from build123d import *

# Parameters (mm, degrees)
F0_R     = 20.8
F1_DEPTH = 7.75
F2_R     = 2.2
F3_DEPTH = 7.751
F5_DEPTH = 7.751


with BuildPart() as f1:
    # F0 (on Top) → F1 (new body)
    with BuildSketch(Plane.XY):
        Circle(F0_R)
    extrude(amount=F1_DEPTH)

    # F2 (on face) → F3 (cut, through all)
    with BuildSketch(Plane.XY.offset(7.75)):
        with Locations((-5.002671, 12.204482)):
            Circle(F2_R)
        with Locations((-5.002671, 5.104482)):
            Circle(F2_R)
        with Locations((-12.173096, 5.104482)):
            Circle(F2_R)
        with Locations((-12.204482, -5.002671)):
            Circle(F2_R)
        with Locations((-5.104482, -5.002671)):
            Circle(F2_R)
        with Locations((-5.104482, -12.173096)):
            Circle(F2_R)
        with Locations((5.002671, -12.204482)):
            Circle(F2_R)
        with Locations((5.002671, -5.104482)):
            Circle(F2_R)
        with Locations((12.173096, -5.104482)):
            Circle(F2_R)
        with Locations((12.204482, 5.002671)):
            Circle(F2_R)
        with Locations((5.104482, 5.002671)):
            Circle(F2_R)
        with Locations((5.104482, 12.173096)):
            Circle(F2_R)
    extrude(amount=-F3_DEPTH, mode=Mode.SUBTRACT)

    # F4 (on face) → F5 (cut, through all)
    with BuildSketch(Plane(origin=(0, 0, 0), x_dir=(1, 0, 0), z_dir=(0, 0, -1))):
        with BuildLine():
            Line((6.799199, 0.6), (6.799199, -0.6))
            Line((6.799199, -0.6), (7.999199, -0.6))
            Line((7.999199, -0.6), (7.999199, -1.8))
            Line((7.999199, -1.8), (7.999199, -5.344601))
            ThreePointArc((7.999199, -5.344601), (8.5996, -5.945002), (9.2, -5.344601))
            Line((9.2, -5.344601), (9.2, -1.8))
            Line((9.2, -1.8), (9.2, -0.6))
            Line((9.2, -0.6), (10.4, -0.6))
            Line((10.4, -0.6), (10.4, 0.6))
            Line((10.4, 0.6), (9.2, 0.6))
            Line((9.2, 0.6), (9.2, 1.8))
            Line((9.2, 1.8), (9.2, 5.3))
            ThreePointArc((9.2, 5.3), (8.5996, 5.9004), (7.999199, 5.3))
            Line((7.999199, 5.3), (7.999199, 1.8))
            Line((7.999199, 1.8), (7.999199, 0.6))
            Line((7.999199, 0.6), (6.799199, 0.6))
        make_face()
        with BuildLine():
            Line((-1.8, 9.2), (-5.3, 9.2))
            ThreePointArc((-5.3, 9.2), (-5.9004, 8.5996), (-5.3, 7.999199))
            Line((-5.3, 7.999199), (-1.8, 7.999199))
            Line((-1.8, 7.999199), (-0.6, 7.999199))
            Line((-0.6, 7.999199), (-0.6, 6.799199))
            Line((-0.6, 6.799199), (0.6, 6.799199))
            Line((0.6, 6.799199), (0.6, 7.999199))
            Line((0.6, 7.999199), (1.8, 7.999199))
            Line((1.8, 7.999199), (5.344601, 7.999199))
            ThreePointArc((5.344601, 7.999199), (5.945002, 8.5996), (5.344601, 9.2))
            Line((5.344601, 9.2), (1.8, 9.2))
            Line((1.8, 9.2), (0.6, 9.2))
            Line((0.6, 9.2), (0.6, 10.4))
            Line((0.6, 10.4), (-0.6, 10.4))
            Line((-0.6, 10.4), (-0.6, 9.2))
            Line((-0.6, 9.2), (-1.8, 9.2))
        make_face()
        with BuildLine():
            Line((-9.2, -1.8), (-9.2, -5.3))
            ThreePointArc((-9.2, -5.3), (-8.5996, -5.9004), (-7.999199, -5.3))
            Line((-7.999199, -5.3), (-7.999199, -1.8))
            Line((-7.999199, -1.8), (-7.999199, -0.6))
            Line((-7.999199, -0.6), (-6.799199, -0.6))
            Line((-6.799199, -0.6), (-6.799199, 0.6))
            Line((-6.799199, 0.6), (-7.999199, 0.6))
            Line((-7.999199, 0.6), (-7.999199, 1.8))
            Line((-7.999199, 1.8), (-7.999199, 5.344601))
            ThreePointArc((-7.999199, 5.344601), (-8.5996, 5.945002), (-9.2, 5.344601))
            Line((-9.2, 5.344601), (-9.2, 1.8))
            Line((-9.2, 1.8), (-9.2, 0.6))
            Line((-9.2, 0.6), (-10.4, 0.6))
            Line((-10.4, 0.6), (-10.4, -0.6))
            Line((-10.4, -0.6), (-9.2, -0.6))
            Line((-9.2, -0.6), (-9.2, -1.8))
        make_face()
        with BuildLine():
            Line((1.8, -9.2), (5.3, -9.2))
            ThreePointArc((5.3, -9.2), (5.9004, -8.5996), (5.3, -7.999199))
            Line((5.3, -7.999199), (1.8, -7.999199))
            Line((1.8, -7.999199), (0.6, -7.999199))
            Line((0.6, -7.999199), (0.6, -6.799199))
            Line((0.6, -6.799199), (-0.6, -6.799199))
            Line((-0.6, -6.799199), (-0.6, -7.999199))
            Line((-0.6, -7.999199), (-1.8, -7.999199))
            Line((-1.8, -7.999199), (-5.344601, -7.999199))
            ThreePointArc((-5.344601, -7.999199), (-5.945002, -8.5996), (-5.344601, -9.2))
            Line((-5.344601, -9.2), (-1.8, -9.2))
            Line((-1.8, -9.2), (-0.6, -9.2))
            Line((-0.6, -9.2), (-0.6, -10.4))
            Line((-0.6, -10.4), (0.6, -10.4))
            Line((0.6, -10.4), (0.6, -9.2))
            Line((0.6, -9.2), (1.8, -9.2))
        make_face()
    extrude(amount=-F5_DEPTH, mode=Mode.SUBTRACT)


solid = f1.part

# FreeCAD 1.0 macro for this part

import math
import FreeCAD as App
import Part
import Sketcher
Q = App.Units.Quantity

doc = App.newDocument("Part")
body = doc.addObject("PartDesign::Body", "Body")

# Sketch on XY plane
sketch1 = doc.addObject("Sketcher::SketchObject", "Sketch")
body.addObject(sketch1)
sketch1.AttachmentSupport = (doc.XY_Plane, [""])
sketch1.MapMode = "FlatFace"
sketch1.addGeometry(Part.Circle(App.Vector(0, 0, 0), App.Vector(0, 0, 1), 20.8), False)
sketch1.addConstraint([
    Sketcher.Constraint("Coincident", 0, 3, -1, 1),
    Sketcher.Constraint("Diameter", 0, Q("41.6 mm")),
])
pad1 = doc.addObject("PartDesign::Pad", "Pad")
body.addObject(pad1)
pad1.Profile = sketch1
pad1.Length = 7.75

# Sketch on XY plane
sketch2 = doc.addObject("Sketcher::SketchObject", "Sketch001")
body.addObject(sketch2)
sketch2.AttachmentSupport = (doc.XY_Plane, [""])
sketch2.MapMode = "FlatFace"
sketch2.AttachmentOffset = App.Placement(App.Vector(0, 0, 7.75), App.Rotation())
sketch2.addGeometry([
    Part.Circle(App.Vector(-5.002671, 12.204482, 0), App.Vector(0, 0, 1), 2.2),  # 0
    Part.Circle(App.Vector(-5.002671, 5.104482, 0), App.Vector(0, 0, 1), 2.2),  # 1
    Part.Circle(App.Vector(-12.173096, 5.104482, 0), App.Vector(0, 0, 1), 2.2),  # 2
    Part.Circle(App.Vector(-12.204482, -5.002671, 0), App.Vector(0, 0, 1), 2.2),  # 3
    Part.Circle(App.Vector(-5.104482, -5.002671, 0), App.Vector(0, 0, 1), 2.2),  # 4
    Part.Circle(App.Vector(-5.104482, -12.173096, 0), App.Vector(0, 0, 1), 2.2),  # 5
    Part.Circle(App.Vector(5.002671, -12.204482, 0), App.Vector(0, 0, 1), 2.2),  # 6
    Part.Circle(App.Vector(5.002671, -5.104482, 0), App.Vector(0, 0, 1), 2.2),  # 7
    Part.Circle(App.Vector(12.173096, -5.104482, 0), App.Vector(0, 0, 1), 2.2),  # 8
    Part.Circle(App.Vector(12.204482, 5.002671, 0), App.Vector(0, 0, 1), 2.2),  # 9
    Part.Circle(App.Vector(5.104482, 5.002671, 0), App.Vector(0, 0, 1), 2.2),  # 10
    Part.Circle(App.Vector(5.104482, 12.173096, 0), App.Vector(0, 0, 1), 2.2),  # 11
], False)
sketch2.addConstraint([
    Sketcher.Constraint("Equal", 0, 1),
    Sketcher.Constraint("Equal", 1, 2),
    Sketcher.Constraint("Equal", 2, 3),
    Sketcher.Constraint("Equal", 3, 4),
    Sketcher.Constraint("Equal", 4, 5),
    Sketcher.Constraint("Equal", 5, 6),
    Sketcher.Constraint("Equal", 6, 7),
    Sketcher.Constraint("Equal", 7, 8),
    Sketcher.Constraint("Equal", 8, 9),
    Sketcher.Constraint("Equal", 9, 10),
    Sketcher.Constraint("Equal", 10, 11),
    Sketcher.Constraint("Symmetric", 0, 3, 6, 3, -1, 1),
    Sketcher.Constraint("Symmetric", 1, 3, 7, 3, -1, 1),
    Sketcher.Constraint("Symmetric", 2, 3, 8, 3, -1, 1),
    Sketcher.Constraint("Symmetric", 3, 3, 9, 3, -1, 1),
    Sketcher.Constraint("Symmetric", 4, 3, 10, 3, -1, 1),
    Sketcher.Constraint("Symmetric", 5, 3, 11, 3, -1, 1),
    Sketcher.Constraint("Horizontal", 1, 3, 2, 3),
    Sketcher.Constraint("Horizontal", 3, 3, 4, 3),
    Sketcher.Constraint("Vertical", 0, 3, 1, 3),
    Sketcher.Constraint("Vertical", 4, 3, 5, 3),
    Sketcher.Constraint("Diameter", 0, Q("4.4 mm")),
    Sketcher.Constraint("DistanceY", 1, 3, 0, 3, Q("7.1 mm")),
    Sketcher.Constraint("DistanceX", 3, 3, 4, 3, Q("7.1 mm")),
    Sketcher.Constraint("DistanceX", 0, 3, -1, 1, Q("5.002671 mm")),
    Sketcher.Constraint("DistanceY", 3, 3, -1, 1, Q("5.002671 mm")),
    Sketcher.Constraint("DistanceX", 3, 3, 1, 3, Q("7.201811 mm")),
    Sketcher.Constraint("DistanceY", 5, 3, 0, 3, Q("24.377578 mm")),
    Sketcher.Constraint("DistanceY", 6, 3, 4, 3, Q("7.201811 mm")),
    Sketcher.Constraint("DistanceX", 2, 3, -1, 1, Q("12.173096 mm")),
])
pocket1 = doc.addObject("PartDesign::Pocket", "Pocket")
body.addObject(pocket1)
pocket1.Profile = sketch2
pocket1.Type = "ThroughAll"

# Sketch on XY plane
sketch3 = doc.addObject("Sketcher::SketchObject", "Sketch002")
body.addObject(sketch3)
sketch3.AttachmentSupport = (doc.XY_Plane, [""])
sketch3.MapMode = "FlatFace"
sketch3.addGeometry([
    Part.LineSegment(App.Vector(6.799199, -0.6, 0), App.Vector(6.799199, 0.6, 0)),  # 0
    Part.LineSegment(App.Vector(6.799199, 0.6, 0), App.Vector(7.999199, 0.6, 0)),  # 1
    Part.LineSegment(App.Vector(7.999199, 0.6, 0), App.Vector(7.999199, 5.344601, 0)),  # 2
    Part.ArcOfCircle(Part.Circle(App.Vector(8.5996, 5.344601, 0), App.Vector(0, 0, 1), 0.600401), math.radians(-0.000048), math.radians(180.000048)),  # 3
    Part.LineSegment(App.Vector(9.2, 5.344601, 0), App.Vector(9.2, 0.6, 0)),  # 4
    Part.LineSegment(App.Vector(9.2, 0.6, 0), App.Vector(10.4, 0.6, 0)),  # 5
    Part.LineSegment(App.Vector(10.4, 0.6, 0), App.Vector(10.4, -0.6, 0)),  # 6
    Part.LineSegment(App.Vector(10.4, -0.6, 0), App.Vector(9.2, -0.6, 0)),  # 7
    Part.LineSegment(App.Vector(9.2, -0.6, 0), App.Vector(9.2, -5.3, 0)),  # 8
    Part.ArcOfCircle(Part.Circle(App.Vector(8.5996, -5.3, 0), App.Vector(0, 0, 1), 0.600401), math.radians(-179.999952), math.radians(-0.000048)),  # 9
    Part.LineSegment(App.Vector(7.999199, -5.3, 0), App.Vector(7.999199, -0.6, 0)),  # 10
    Part.LineSegment(App.Vector(7.999199, -0.6, 0), App.Vector(6.799199, -0.6, 0)),  # 11
    Part.ArcOfCircle(Part.Circle(App.Vector(-5.3, -8.5996, 0), App.Vector(0, 0, 1), 0.600401), math.radians(90.000048), math.radians(269.999952)),  # 12
    Part.LineSegment(App.Vector(-5.3, -7.999199, 0), App.Vector(-0.6, -7.999199, 0)),  # 13
    Part.LineSegment(App.Vector(-0.6, -7.999199, 0), App.Vector(-0.6, -6.799199, 0)),  # 14
    Part.LineSegment(App.Vector(-0.6, -6.799199, 0), App.Vector(0.6, -6.799199, 0)),  # 15
    Part.LineSegment(App.Vector(0.6, -6.799199, 0), App.Vector(0.6, -7.999199, 0)),  # 16
    Part.LineSegment(App.Vector(0.6, -7.999199, 0), App.Vector(5.344601, -7.999199, 0)),  # 17
    Part.ArcOfCircle(Part.Circle(App.Vector(5.344601, -8.5996, 0), App.Vector(0, 0, 1), 0.600401), math.radians(-90.000048), math.radians(90.000048)),  # 18
    Part.LineSegment(App.Vector(5.344601, -9.2, 0), App.Vector(0.6, -9.2, 0)),  # 19
    Part.LineSegment(App.Vector(0.6, -9.2, 0), App.Vector(0.6, -10.4, 0)),  # 20
    Part.LineSegment(App.Vector(0.6, -10.4, 0), App.Vector(-0.6, -10.4, 0)),  # 21
    Part.LineSegment(App.Vector(-0.6, -10.4, 0), App.Vector(-0.6, -9.2, 0)),  # 22
    Part.LineSegment(App.Vector(-0.6, -9.2, 0), App.Vector(-5.3, -9.2, 0)),  # 23
    Part.ArcOfCircle(Part.Circle(App.Vector(-8.5996, 5.3, 0), App.Vector(0, 0, 1), 0.600401), math.radians(0.000048), math.radians(179.999952)),  # 24
    Part.LineSegment(App.Vector(-7.999199, 5.3, 0), App.Vector(-7.999199, 0.6, 0)),  # 25
    Part.LineSegment(App.Vector(-7.999199, 0.6, 0), App.Vector(-6.799199, 0.6, 0)),  # 26
    Part.LineSegment(App.Vector(-6.799199, 0.6, 0), App.Vector(-6.799199, -0.6, 0)),  # 27
    Part.LineSegment(App.Vector(-6.799199, -0.6, 0), App.Vector(-7.999199, -0.6, 0)),  # 28
    Part.LineSegment(App.Vector(-7.999199, -0.6, 0), App.Vector(-7.999199, -5.344601, 0)),  # 29
    Part.ArcOfCircle(Part.Circle(App.Vector(-8.5996, -5.344601, 0), App.Vector(0, 0, 1), 0.600401), math.radians(179.999952), math.radians(360.000048)),  # 30
    Part.LineSegment(App.Vector(-9.2, -5.344601, 0), App.Vector(-9.2, -0.6, 0)),  # 31
    Part.LineSegment(App.Vector(-9.2, -0.6, 0), App.Vector(-10.4, -0.6, 0)),  # 32
    Part.LineSegment(App.Vector(-10.4, -0.6, 0), App.Vector(-10.4, 0.6, 0)),  # 33
    Part.LineSegment(App.Vector(-10.4, 0.6, 0), App.Vector(-9.2, 0.6, 0)),  # 34
    Part.LineSegment(App.Vector(-9.2, 0.6, 0), App.Vector(-9.2, 5.3, 0)),  # 35
    Part.ArcOfCircle(Part.Circle(App.Vector(5.3, 8.5996, 0), App.Vector(0, 0, 1), 0.600401), math.radians(-89.999952), math.radians(89.999952)),  # 36
    Part.LineSegment(App.Vector(5.3, 7.999199, 0), App.Vector(0.6, 7.999199, 0)),  # 37
    Part.LineSegment(App.Vector(0.6, 7.999199, 0), App.Vector(0.6, 6.799199, 0)),  # 38
    Part.LineSegment(App.Vector(0.6, 6.799199, 0), App.Vector(-0.6, 6.799199, 0)),  # 39
    Part.LineSegment(App.Vector(-0.6, 6.799199, 0), App.Vector(-0.6, 7.999199, 0)),  # 40
    Part.LineSegment(App.Vector(-0.6, 7.999199, 0), App.Vector(-5.344601, 7.999199, 0)),  # 41
    Part.ArcOfCircle(Part.Circle(App.Vector(-5.344601, 8.5996, 0), App.Vector(0, 0, 1), 0.600401), math.radians(89.999952), math.radians(270.000048)),  # 42
    Part.LineSegment(App.Vector(-5.344601, 9.2, 0), App.Vector(-0.6, 9.2, 0)),  # 43
    Part.LineSegment(App.Vector(-0.6, 9.2, 0), App.Vector(-0.6, 10.4, 0)),  # 44
    Part.LineSegment(App.Vector(-0.6, 10.4, 0), App.Vector(0.6, 10.4, 0)),  # 45
    Part.LineSegment(App.Vector(0.6, 10.4, 0), App.Vector(0.6, 9.2, 0)),  # 46
    Part.LineSegment(App.Vector(0.6, 9.2, 0), App.Vector(5.3, 9.2, 0)),  # 47
], False)
sketch3.addConstraint([
    Sketcher.Constraint("Coincident", 0, 2, 1, 1),
    Sketcher.Constraint("Coincident", 1, 2, 2, 1),
    Sketcher.Constraint("Tangent", 2, 2, 3, 2),
    Sketcher.Constraint("Tangent", 3, 1, 4, 1),
    Sketcher.Constraint("Coincident", 4, 2, 5, 1),
    Sketcher.Constraint("Coincident", 5, 2, 6, 1),
    Sketcher.Constraint("Coincident", 6, 2, 7, 1),
    Sketcher.Constraint("Coincident", 7, 2, 8, 1),
    Sketcher.Constraint("Tangent", 8, 2, 9, 2),
    Sketcher.Constraint("Tangent", 9, 1, 10, 1),
    Sketcher.Constraint("Coincident", 10, 2, 11, 1),
    Sketcher.Constraint("Coincident", 11, 2, 0, 1),
    Sketcher.Constraint("Tangent", 12, 1, 13, 1),
    Sketcher.Constraint("Coincident", 13, 2, 14, 1),
    Sketcher.Constraint("Coincident", 14, 2, 15, 1),
    Sketcher.Constraint("Coincident", 15, 2, 16, 1),
    Sketcher.Constraint("Coincident", 16, 2, 17, 1),
    Sketcher.Constraint("Tangent", 17, 2, 18, 2),
    Sketcher.Constraint("Tangent", 18, 1, 19, 1),
    Sketcher.Constraint("Coincident", 19, 2, 20, 1),
    Sketcher.Constraint("Coincident", 20, 2, 21, 1),
    Sketcher.Constraint("Coincident", 21, 2, 22, 1),
    Sketcher.Constraint("Coincident", 22, 2, 23, 1),
    Sketcher.Constraint("Tangent", 23, 2, 12, 2),
    Sketcher.Constraint("Tangent", 24, 1, 25, 1),
    Sketcher.Constraint("Coincident", 25, 2, 26, 1),
    Sketcher.Constraint("Coincident", 26, 2, 27, 1),
    Sketcher.Constraint("Coincident", 27, 2, 28, 1),
    Sketcher.Constraint("Coincident", 28, 2, 29, 1),
    Sketcher.Constraint("Tangent", 29, 2, 30, 2),
    Sketcher.Constraint("Tangent", 30, 1, 31, 1),
    Sketcher.Constraint("Coincident", 31, 2, 32, 1),
    Sketcher.Constraint("Coincident", 32, 2, 33, 1),
    Sketcher.Constraint("Coincident", 33, 2, 34, 1),
    Sketcher.Constraint("Coincident", 34, 2, 35, 1),
    Sketcher.Constraint("Tangent", 35, 2, 24, 2),
    Sketcher.Constraint("Tangent", 36, 1, 37, 1),
    Sketcher.Constraint("Coincident", 37, 2, 38, 1),
    Sketcher.Constraint("Coincident", 38, 2, 39, 1),
    Sketcher.Constraint("Coincident", 39, 2, 40, 1),
    Sketcher.Constraint("Coincident", 40, 2, 41, 1),
    Sketcher.Constraint("Tangent", 41, 2, 42, 2),
    Sketcher.Constraint("Tangent", 42, 1, 43, 1),
    Sketcher.Constraint("Coincident", 43, 2, 44, 1),
    Sketcher.Constraint("Coincident", 44, 2, 45, 1),
    Sketcher.Constraint("Coincident", 45, 2, 46, 1),
    Sketcher.Constraint("Coincident", 46, 2, 47, 1),
    Sketcher.Constraint("Tangent", 47, 2, 36, 2),
    Sketcher.Constraint("Vertical", 0),
    Sketcher.Constraint("Horizontal", 1),
    Sketcher.Constraint("Vertical", 2),
    Sketcher.Constraint("Vertical", 4),
    Sketcher.Constraint("Horizontal", 5),
    Sketcher.Constraint("Vertical", 6),
    Sketcher.Constraint("Horizontal", 7),
    Sketcher.Constraint("Vertical", 8),
    Sketcher.Constraint("Vertical", 10),
    Sketcher.Constraint("Horizontal", 11),
    Sketcher.Constraint("Horizontal", 13),
    Sketcher.Constraint("Vertical", 14),
    Sketcher.Constraint("Horizontal", 15),
    Sketcher.Constraint("Vertical", 16),
    Sketcher.Constraint("Horizontal", 17),
    Sketcher.Constraint("Horizontal", 19),
    Sketcher.Constraint("Vertical", 20),
    Sketcher.Constraint("Horizontal", 21),
    Sketcher.Constraint("Vertical", 22),
    Sketcher.Constraint("Horizontal", 23),
    Sketcher.Constraint("Vertical", 25),
    Sketcher.Constraint("Horizontal", 26),
    Sketcher.Constraint("Vertical", 27),
    Sketcher.Constraint("Horizontal", 28),
    Sketcher.Constraint("Vertical", 29),
    Sketcher.Constraint("Vertical", 31),
    Sketcher.Constraint("Horizontal", 32),
    Sketcher.Constraint("Vertical", 33),
    Sketcher.Constraint("Horizontal", 34),
    Sketcher.Constraint("Vertical", 35),
    Sketcher.Constraint("Horizontal", 37),
    Sketcher.Constraint("Vertical", 38),
    Sketcher.Constraint("Horizontal", 39),
    Sketcher.Constraint("Vertical", 40),
    Sketcher.Constraint("Horizontal", 41),
    Sketcher.Constraint("Horizontal", 43),
    Sketcher.Constraint("Vertical", 44),
    Sketcher.Constraint("Horizontal", 45),
    Sketcher.Constraint("Vertical", 46),
    Sketcher.Constraint("Horizontal", 47),
    Sketcher.Constraint("Equal", 3, 9),
    Sketcher.Constraint("Equal", 9, 12),
    Sketcher.Constraint("Equal", 12, 18),
    Sketcher.Constraint("Equal", 18, 24),
    Sketcher.Constraint("Equal", 24, 30),
    Sketcher.Constraint("Equal", 30, 36),
    Sketcher.Constraint("Equal", 36, 42),
    Sketcher.Constraint("Symmetric", 9, 3, 24, 3, -1, 1),
    Sketcher.Constraint("Symmetric", 3, 3, 30, 3, -1, 1),
    Sketcher.Constraint("Symmetric", 12, 3, 36, 3, -1, 1),
    Sketcher.Constraint("Symmetric", 18, 3, 42, 3, -1, 1),
    Sketcher.Constraint("Symmetric", 11, 2, 26, 2, -1, 1),
    Sketcher.Constraint("Symmetric", 5, 2, 32, 2, -1, 1),
    Sketcher.Constraint("Symmetric", 14, 2, 38, 2, -1, 1),
    Sketcher.Constraint("Symmetric", 20, 2, 44, 2, -1, 1),
    Sketcher.Constraint("Symmetric", 13, 2, 16, 2, -2),
    Sketcher.Constraint("Symmetric", 1, 2, 25, 2, -2),
    Sketcher.Constraint("Horizontal", 1, 2, 4, 2),
    Sketcher.Constraint("Horizontal", 7, 2, 10, 2),
    Sketcher.Constraint("Horizontal", 11, 2, 27, 2),
    Sketcher.Constraint("Horizontal", 26, 2, 33, 2),
    Sketcher.Constraint("Vertical", 16, 2, 19, 2),
    Sketcher.Constraint("Vertical", 14, 2, 21, 2),
    Sketcher.Constraint("Vertical", 22, 2, 39, 2),
    Sketcher.Constraint("Vertical", 38, 2, 45, 2),
    Sketcher.Constraint("Equal", 1, 5),
    Sketcher.Constraint("Equal", 11, 15),
    Sketcher.Constraint("Equal", 45, 0),
    Sketcher.Constraint("Equal", 43, 2),
    Sketcher.Constraint("Equal", 47, 8),
    Sketcher.Constraint("Equal", 6, 14),
    Sketcher.Constraint("Equal", 16, 20),
    Sketcher.Constraint("DistanceX", 1, 1, 1, 2, Q("1.2 mm")),
    Sketcher.Constraint("DistanceX", 13, 1, 13, 2, Q("4.7 mm")),
    Sketcher.Constraint("DistanceX", -1, 1, 3, 1, Q("9.2 mm")),
    Sketcher.Constraint("DistanceY", 18, 1, -1, 1, Q("9.2 mm")),
    Sketcher.Constraint("Radius", 3, Q("0.600401 mm")),
    Sketcher.Constraint("DistanceX", 17, 1, 17, 2, Q("4.744601 mm")),
])
pocket2 = doc.addObject("PartDesign::Pocket", "Pocket001")
body.addObject(pocket2)
pocket2.Profile = sketch3
pocket2.Type = "ThroughAll"
pocket2.Reversed = True

doc.recompute()
